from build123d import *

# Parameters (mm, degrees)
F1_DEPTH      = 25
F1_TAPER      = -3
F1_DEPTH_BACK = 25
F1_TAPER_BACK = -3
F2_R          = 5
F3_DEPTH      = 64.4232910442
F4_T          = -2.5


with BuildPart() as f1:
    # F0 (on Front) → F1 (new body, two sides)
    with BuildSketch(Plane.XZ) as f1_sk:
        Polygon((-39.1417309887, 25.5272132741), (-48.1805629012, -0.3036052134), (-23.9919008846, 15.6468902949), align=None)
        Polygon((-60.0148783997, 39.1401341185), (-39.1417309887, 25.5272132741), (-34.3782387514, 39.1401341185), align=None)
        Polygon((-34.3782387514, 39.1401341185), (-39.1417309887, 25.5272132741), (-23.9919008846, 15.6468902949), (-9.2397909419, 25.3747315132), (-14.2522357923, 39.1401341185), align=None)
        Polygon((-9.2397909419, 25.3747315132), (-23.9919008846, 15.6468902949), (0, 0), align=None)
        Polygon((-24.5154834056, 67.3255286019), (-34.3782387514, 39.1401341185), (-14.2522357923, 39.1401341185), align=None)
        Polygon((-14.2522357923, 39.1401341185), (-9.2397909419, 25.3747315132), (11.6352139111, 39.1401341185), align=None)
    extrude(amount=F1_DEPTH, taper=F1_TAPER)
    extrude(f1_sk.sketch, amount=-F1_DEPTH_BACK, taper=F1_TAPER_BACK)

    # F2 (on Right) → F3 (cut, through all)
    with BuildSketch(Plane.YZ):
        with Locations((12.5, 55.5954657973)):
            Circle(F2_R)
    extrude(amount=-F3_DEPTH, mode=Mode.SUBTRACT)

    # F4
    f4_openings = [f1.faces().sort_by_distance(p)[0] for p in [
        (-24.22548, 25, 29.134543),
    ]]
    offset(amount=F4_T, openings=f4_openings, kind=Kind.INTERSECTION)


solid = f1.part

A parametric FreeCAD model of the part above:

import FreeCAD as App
import Part
import Sketcher
from FreeCAD import Vector


def faces_at(feature, points):
    """Names of the faces that lie closest to the given points."""
    faces = feature.Shape.Faces
    near = lambda p: min(range(len(faces)), key=lambda i: faces[i].distToShape(Part.Vertex(*p))[0])
    return sorted({f"Face{near(p) + 1}" for p in points})

doc = App.newDocument("Part")
body = doc.addObject("PartDesign::Body", "Body")

# Sketch on XZ plane
sketch1 = body.newObject("Sketcher::SketchObject", "Sketch")
sketch1.AttachmentSupport = (doc.getObject("XZ_Plane"), [""])
sketch1.MapMode = "FlatFace"
sketch1.addGeometry([
    Part.LineSegment(Vector(-39.141731, 25.527213, 0), Vector(-48.180563, -0.303605, 0)),  # 0
    Part.LineSegment(Vector(-48.180563, -0.303605, 0), Vector(-23.991901, 15.64689, 0)),  # 1
    Part.LineSegment(Vector(-23.991901, 15.64689, 0), Vector(0, 0, 0)),  # 2
    Part.LineSegment(Vector(0, 0, 0), Vector(-9.239791, 25.374732, 0)),  # 3
    Part.LineSegment(Vector(-9.239791, 25.374732, 0), Vector(11.635214, 39.140134, 0)),  # 4
    Part.LineSegment(Vector(11.635214, 39.140134, 0), Vector(-14.252236, 39.140134, 0)),  # 5
    Part.LineSegment(Vector(-14.252236, 39.140134, 0), Vector(-24.515483, 67.325529, 0)),  # 6
    Part.LineSegment(Vector(-24.515483, 67.325529, 0), Vector(-34.378239, 39.140134, 0)),  # 7
    Part.LineSegment(Vector(-34.378239, 39.140134, 0), Vector(-60.014878, 39.140134, 0)),  # 8
    Part.LineSegment(Vector(-60.014878, 39.140134, 0), Vector(-39.141731, 25.527213, 0)),  # 9
], False)
sketch1.addConstraint([
    Sketcher.Constraint("Coincident", 0, 2, 1, 1),
    Sketcher.Constraint("Coincident", 1, 2, 2, 1),
    Sketcher.Constraint("Coincident", 2, 2, 3, 1),
    Sketcher.Constraint("Coincident", 3, 2, 4, 1),
    Sketcher.Constraint("Coincident", 4, 2, 5, 1),
    Sketcher.Constraint("Coincident", 5, 2, 6, 1),
    Sketcher.Constraint("Coincident", 6, 2, 7, 1),
    Sketcher.Constraint("Coincident", 7, 2, 8, 1),
    Sketcher.Constraint("Coincident", 8, 2, 9, 1),
    Sketcher.Constraint("Coincident", 9, 2, 0, 1),
    Sketcher.Constraint("Horizontal", 5),
    Sketcher.Constraint("Horizontal", 8),
    Sketcher.Constraint("Coincident", 2, 2, -1, 1),
    Sketcher.Constraint("Parallel", 1, 4),
    Sketcher.Constraint("Parallel", 3, 6),
    Sketcher.Constraint("Parallel", 0, 7),
    Sketcher.Constraint("Parallel", 2, 9),
    Sketcher.Constraint("Horizontal", 5, 2, 7, 2),
    Sketcher.Constraint("DistanceX", 5, 2, 5, 1, 25.88745),
    Sketcher.Constraint("DistanceX", 8, 2, 8, 1, 25.63664),
    Sketcher.Constraint("DistanceX", 1, 2, -1, 1, 23.991901),
    Sketcher.Constraint("Distance", 9, 24.91987),
    Sketcher.Constraint("DistanceY", -1, 1, 1, 2, 15.64689),
    Sketcher.Constraint("DistanceX", 3, 2, -1, 1, 9.239791),
    Sketcher.Constraint("DistanceY", -1, 1, 3, 2, 25.374732),
    Sketcher.Constraint("DistanceY", -1, 1, 6, 2, 67.325529),
    Sketcher.Constraint("DistanceX", 7, 2, -1, 1, 34.378239),
    Sketcher.Constraint("DistanceX", 0, 2, 3, 2, 38.940772),
    Sketcher.Constraint("DistanceY", 0, 2, 4, 2, 39.443739),
])
pad1 = body.newObject("PartDesign::Pad", "Pad")
pad1.Profile = sketch1
pad1.Length = 25
pad1.TaperAngle = 3
pad2 = body.newObject("PartDesign::Pad", "Pad001")
pad2.Profile = sketch1
pad2.Length = 25
pad2.Reversed = True
pad2.TaperAngle = 3

# Sketch on YZ plane
sketch2 = body.newObject("Sketcher::SketchObject", "Sketch001")
sketch2.AttachmentSupport = (doc.getObject("YZ_Plane"), [""])
sketch2.MapMode = "FlatFace"
sketch2.addGeometry(Part.Circle(Vector(12.5, 55.595466, 0), Vector(0, 0, 1), 5), False)
sketch2.addConstraint([
    Sketcher.Constraint("Diameter", 0, 10.0),
    Sketcher.Constraint("DistanceX", -1, 1, 0, 3, 12.5),
    Sketcher.Constraint("DistanceY", -1, 1, 0, 3, 55.595466),
])
pocket1 = body.newObject("PartDesign::Pocket", "Pocket")
pocket1.Profile = sketch2
pocket1.Type = "ThroughAll"
doc.recompute()

thickness = body.newObject("PartDesign::Thickness", "Thickness")
thickness.Base = (pocket1, faces_at(pocket1, [(-21.656, 25, 31.08)]))
thickness.Value = 2.5
thickness.Reversed = True
thickness.Join = "Intersection"

doc.recompute()
